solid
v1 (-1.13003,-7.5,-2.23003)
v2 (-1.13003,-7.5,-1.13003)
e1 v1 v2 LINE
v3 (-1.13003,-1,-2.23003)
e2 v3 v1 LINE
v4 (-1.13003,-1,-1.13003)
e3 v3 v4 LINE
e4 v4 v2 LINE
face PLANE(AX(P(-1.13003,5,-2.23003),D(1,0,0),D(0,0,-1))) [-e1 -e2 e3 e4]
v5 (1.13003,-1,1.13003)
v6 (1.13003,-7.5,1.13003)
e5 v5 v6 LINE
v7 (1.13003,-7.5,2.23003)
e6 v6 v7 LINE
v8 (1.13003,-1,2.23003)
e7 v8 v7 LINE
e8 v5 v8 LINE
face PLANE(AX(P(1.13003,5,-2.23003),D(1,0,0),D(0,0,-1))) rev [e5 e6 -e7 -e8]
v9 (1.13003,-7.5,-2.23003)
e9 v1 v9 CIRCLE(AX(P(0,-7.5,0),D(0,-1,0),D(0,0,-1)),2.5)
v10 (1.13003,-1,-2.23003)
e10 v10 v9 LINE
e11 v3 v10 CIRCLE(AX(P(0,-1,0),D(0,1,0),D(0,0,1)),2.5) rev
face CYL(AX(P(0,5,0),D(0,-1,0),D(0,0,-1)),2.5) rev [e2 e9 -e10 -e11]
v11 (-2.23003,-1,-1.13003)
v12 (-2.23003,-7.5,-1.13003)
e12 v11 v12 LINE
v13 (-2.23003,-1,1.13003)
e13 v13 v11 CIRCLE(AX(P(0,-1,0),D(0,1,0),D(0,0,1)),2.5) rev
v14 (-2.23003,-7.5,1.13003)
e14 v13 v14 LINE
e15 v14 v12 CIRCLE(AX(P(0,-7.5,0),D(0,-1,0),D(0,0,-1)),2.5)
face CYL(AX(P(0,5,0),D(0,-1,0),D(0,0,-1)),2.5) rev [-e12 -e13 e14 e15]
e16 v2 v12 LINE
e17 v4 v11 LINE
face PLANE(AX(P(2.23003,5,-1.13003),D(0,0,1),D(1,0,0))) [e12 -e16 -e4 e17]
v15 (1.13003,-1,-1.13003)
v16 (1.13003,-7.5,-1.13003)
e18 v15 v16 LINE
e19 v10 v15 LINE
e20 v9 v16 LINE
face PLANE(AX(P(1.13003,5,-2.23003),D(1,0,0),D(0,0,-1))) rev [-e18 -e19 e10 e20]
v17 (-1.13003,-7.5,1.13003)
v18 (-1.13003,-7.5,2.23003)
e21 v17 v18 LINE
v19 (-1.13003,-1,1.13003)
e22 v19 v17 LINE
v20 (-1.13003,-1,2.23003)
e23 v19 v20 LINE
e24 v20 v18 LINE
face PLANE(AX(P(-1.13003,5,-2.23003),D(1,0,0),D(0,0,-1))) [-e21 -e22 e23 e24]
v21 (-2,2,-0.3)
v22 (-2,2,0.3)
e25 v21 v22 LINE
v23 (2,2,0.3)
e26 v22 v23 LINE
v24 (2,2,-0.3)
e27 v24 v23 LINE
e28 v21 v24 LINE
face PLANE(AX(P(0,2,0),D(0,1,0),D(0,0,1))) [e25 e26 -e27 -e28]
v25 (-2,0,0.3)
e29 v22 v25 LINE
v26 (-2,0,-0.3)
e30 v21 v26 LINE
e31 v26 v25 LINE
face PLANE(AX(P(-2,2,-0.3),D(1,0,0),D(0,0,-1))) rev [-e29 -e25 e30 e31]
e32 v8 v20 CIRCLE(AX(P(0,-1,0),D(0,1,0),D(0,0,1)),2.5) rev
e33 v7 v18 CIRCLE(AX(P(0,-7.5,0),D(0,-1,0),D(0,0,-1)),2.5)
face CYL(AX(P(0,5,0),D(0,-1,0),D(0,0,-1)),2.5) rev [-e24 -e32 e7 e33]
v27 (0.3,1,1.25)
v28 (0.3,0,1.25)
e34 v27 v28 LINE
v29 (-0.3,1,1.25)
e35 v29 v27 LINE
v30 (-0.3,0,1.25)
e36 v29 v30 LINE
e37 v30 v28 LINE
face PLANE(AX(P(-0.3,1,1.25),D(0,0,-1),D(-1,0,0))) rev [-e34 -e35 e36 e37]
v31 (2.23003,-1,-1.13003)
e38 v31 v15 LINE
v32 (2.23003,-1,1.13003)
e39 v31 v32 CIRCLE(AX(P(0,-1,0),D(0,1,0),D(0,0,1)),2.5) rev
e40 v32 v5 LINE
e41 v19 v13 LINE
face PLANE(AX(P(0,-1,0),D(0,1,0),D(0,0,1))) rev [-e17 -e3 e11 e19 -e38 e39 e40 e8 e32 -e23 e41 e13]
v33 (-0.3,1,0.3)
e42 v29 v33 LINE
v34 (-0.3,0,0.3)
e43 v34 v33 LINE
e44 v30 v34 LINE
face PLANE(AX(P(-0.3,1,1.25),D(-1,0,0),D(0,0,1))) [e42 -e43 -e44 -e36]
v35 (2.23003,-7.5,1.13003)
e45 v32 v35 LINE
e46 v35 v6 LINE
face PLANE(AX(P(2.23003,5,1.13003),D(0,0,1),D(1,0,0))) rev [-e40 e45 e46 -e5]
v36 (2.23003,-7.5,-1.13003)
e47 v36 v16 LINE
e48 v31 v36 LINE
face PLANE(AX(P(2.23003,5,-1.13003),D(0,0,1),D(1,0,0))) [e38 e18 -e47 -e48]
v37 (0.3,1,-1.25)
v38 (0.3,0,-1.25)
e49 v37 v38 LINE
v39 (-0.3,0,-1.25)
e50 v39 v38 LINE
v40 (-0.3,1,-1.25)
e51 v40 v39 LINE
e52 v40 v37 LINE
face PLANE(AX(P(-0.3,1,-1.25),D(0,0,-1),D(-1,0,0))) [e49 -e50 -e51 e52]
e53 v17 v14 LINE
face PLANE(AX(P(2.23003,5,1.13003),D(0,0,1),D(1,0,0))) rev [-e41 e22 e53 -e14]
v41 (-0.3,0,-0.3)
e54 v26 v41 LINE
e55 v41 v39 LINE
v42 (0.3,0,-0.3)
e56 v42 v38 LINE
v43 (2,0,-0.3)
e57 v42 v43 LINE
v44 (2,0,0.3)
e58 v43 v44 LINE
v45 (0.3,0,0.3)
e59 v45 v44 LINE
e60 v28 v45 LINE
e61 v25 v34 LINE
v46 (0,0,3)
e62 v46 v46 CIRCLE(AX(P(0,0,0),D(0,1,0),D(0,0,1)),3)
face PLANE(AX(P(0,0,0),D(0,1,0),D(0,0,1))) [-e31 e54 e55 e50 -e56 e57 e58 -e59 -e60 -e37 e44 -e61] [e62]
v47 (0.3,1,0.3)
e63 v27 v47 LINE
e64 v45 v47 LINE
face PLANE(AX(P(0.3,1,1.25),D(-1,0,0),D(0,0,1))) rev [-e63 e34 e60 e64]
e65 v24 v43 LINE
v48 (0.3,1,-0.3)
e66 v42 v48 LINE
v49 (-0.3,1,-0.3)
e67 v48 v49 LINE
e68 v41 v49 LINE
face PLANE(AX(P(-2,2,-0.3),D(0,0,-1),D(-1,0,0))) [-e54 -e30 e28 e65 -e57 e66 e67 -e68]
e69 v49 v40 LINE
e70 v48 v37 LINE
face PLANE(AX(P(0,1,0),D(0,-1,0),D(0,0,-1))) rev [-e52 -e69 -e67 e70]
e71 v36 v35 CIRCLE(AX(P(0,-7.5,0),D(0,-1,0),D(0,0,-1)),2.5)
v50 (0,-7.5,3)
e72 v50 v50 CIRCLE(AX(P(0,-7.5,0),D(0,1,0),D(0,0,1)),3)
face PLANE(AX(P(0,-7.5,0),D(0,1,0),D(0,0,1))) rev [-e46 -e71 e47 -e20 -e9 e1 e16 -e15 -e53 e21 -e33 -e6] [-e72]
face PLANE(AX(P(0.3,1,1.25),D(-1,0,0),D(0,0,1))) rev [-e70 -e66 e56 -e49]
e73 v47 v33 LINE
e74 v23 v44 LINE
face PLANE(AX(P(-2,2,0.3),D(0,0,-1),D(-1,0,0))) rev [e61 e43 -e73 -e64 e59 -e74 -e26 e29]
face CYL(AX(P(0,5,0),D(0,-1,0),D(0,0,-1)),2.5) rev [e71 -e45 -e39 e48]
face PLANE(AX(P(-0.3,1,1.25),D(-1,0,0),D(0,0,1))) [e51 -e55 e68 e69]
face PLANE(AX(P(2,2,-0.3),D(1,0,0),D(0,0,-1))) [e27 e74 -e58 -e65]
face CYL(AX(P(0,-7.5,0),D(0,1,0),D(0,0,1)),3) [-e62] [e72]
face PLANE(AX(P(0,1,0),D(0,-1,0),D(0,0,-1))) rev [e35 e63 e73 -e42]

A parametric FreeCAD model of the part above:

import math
import FreeCAD as App
import Part
import Sketcher

V = App.Vector


def add_polygon(sketch, points):
    """Adds a closed chain of lines whose ends are joined by coincident constraints."""
    first, n = sketch.GeometryCount, len(points)
    for a, b in zip(points, points[1:] + points[:1]):
        sketch.addGeometry(Part.LineSegment(App.Vector(*a, 0), App.Vector(*b, 0)), False)
    for i in range(n):
        sketch.addConstraint(Sketcher.Constraint("Coincident", first + i, 2, first + (i + 1) % n, 1))

doc = App.newDocument("Part")
params = doc.addObject("Spreadsheet::Sheet", "Params")
for row, (alias, value) in enumerate([
    ("sketch1_width", "4 mm"),
    ("sketch1_height", "0.6 mm"),
    ("pad1_length", "2 mm"),
    ("sketch2_width", "0.6 mm"),
    ("sketch2_height", "2.5 mm"),
    ("pad2_length", "1 mm"),
    ("sketch3_diameter", "6 mm"),
    ("pad3_length", "7.5 mm"),
    ("sketch4_radius", "2.5 mm"),
    ("sketch4_width", "1.1 mm"),
    ("pocket1_length", "6.5 mm"),
], start=1):
    params.set(f"A{row}", alias)
    params.set(f"B{row}", "=" + value)
    params.setAlias(f"B{row}", alias)

body = doc.addObject("PartDesign::Body", "Body")

# Sketch on XZ plane
sketch1 = doc.addObject("Sketcher::SketchObject", "Sketch")
body.addObject(sketch1)
sketch1.AttachmentSupport = (doc.XZ_Plane, [""])
sketch1.MapMode = "FlatFace"
add_polygon(sketch1, [(-2, -0.3), (-2, 0.3), (2, 0.3), (2, -0.3)])  # lines 0-3
sketch1.addConstraint([
    Sketcher.Constraint("Vertical", 0),
    Sketcher.Constraint("Horizontal", 1),
    Sketcher.Constraint("Vertical", 2),
    Sketcher.Constraint("Horizontal", 3),
    Sketcher.Constraint("Symmetric", 0, 2, 2, 2, -1, 1),
    Sketcher.Constraint("DistanceX", 1, 1, 1, 2, 4.0),
    Sketcher.Constraint("DistanceY", 0, 1, 0, 2, 0.6),
])
sketch1.setExpression("Constraints[9]", "Params.sketch1_width")
sketch1.setExpression("Constraints[10]", "Params.sketch1_height")
pad1 = doc.addObject("PartDesign::Pad", "Pad")
body.addObject(pad1)
pad1.Profile = sketch1
pad1.setExpression("Length", "Params.pad1_length")
pad1.Reversed = True

# Sketch on XZ plane
sketch2 = doc.addObject("Sketcher::SketchObject", "Sketch001")
body.addObject(sketch2)
sketch2.AttachmentSupport = (doc.XZ_Plane, [""])
sketch2.MapMode = "FlatFace"
add_polygon(sketch2, [(-0.3, -1.2), (-0.3, 1.2), (0.3, 1.2), (0.3, -1.2)])  # lines 0-3
sketch2.addConstraint([
    Sketcher.Constraint("Vertical", 0),
    Sketcher.Constraint("Horizontal", 1),
    Sketcher.Constraint("Vertical", 2),
    Sketcher.Constraint("Horizontal", 3),
    Sketcher.Constraint("Symmetric", 0, 2, 2, 2, -1, 1),
    Sketcher.Constraint("DistanceX", 1, 1, 1, 2, 0.6),
    Sketcher.Constraint("DistanceY", 0, 1, 0, 2, 2.5),
])
sketch2.setExpression("Constraints[9]", "Params.sketch2_width")
sketch2.setExpression("Constraints[10]", "Params.sketch2_height")
pad2 = doc.addObject("PartDesign::Pad", "Pad001")
body.addObject(pad2)
pad2.Profile = sketch2
pad2.setExpression("Length", "Params.pad2_length")
pad2.Reversed = True

# Sketch on XZ plane
sketch3 = doc.addObject("Sketcher::SketchObject", "Sketch002")
body.addObject(sketch3)
sketch3.AttachmentSupport = (doc.XZ_Plane, [""])
sketch3.MapMode = "FlatFace"
sketch3.addGeometry(Part.Circle(V(0, 0, 0), V(0, 0, 1), 3), False)
sketch3.addConstraint([
    Sketcher.Constraint("Coincident", 0, 3, -1, 1),
    Sketcher.Constraint("Diameter", 0, 6.0),
])
sketch3.setExpression("Constraints[1]", "Params.sketch3_diameter")
pad3 = doc.addObject("PartDesign::Pad", "Pad002")
body.addObject(pad3)
pad3.Profile = sketch3
pad3.setExpression("Length", "Params.pad3_length")

# Sketch on XZ plane
sketch4 = doc.addObject("Sketcher::SketchObject", "Sketch003")
body.addObject(sketch4)
sketch4.AttachmentSupport = (doc.XZ_Plane, [""])
sketch4.MapMode = "FlatFace"
sketch4.AttachmentOffset = App.Placement(V(0, 0, 7.5), App.Rotation())
sketch4.addGeometry([
    Part.ArcOfCircle(Part.Circle(V(0, 0, 0), V(0, 0, 1), 2.5), math.radians(-117), math.radians(-63)),  # 0
    Part.LineSegment(V(1.1, -2.2, 0), V(1.1, -1.1, 0)),  # 1
    Part.LineSegment(V(1.1, -1.1, 0), V(2.2, -1.1, 0)),  # 2
    Part.ArcOfCircle(Part.Circle(V(0, 0, 0), V(0, 0, 1), 2.5), math.radians(-27), math.radians(27)),  # 3
    Part.LineSegment(V(2.2, 1.1, 0), V(1.1, 1.1, 0)),  # 4
    Part.LineSegment(V(1.1, 1.1, 0), V(1.1, 2.2, 0)),  # 5
    Part.ArcOfCircle(Part.Circle(V(0, 0, 0), V(0, 0, 1), 2.5), math.radians(63), math.radians(117)),  # 6
    Part.LineSegment(V(-1.1, 2.2, 0), V(-1.1, 1.1, 0)),  # 7
    Part.LineSegment(V(-1.1, 1.1, 0), V(-2.2, 1.1, 0)),  # 8
    Part.ArcOfCircle(Part.Circle(V(0, 0, 0), V(0, 0, 1), 2.5), math.radians(153), math.radians(207)),  # 9
    Part.LineSegment(V(-2.2, -1.1, 0), V(-1.1, -1.1, 0)),  # 10
    Part.LineSegment(V(-1.1, -1.1, 0), V(-1.1, -2.2, 0)),  # 11
], False)
sketch4.addConstraint([
    Sketcher.Constraint("Coincident", 0, 2, 1, 1),
    Sketcher.Constraint("Coincident", 1, 2, 2, 1),
    Sketcher.Constraint("Coincident", 2, 2, 3, 1),
    Sketcher.Constraint("Coincident", 3, 2, 4, 1),
    Sketcher.Constraint("Coincident", 4, 2, 5, 1),
    Sketcher.Constraint("Coincident", 5, 2, 6, 1),
    Sketcher.Constraint("Coincident", 6, 2, 7, 1),
    Sketcher.Constraint("Coincident", 7, 2, 8, 1),
    Sketcher.Constraint("Coincident", 8, 2, 9, 1),
    Sketcher.Constraint("Coincident", 9, 2, 10, 1),
    Sketcher.Constraint("Coincident", 10, 2, 11, 1),
    Sketcher.Constraint("Coincident", 11, 2, 0, 1),
    Sketcher.Constraint("Vertical", 1),
    Sketcher.Constraint("Horizontal", 2),
    Sketcher.Constraint("Horizontal", 4),
    Sketcher.Constraint("Vertical", 5),
    Sketcher.Constraint("Vertical", 7),
    Sketcher.Constraint("Horizontal", 8),
    Sketcher.Constraint("Horizontal", 10),
    Sketcher.Constraint("Vertical", 11),
    Sketcher.Constraint("Coincident", 0, 3, -1, 1),
    Sketcher.Constraint("Coincident", 3, 3, -1, 1),
    Sketcher.Constraint("Coincident", 6, 3, -1, 1),
    Sketcher.Constraint("Coincident", 9, 3, -1, 1),
    Sketcher.Constraint("Equal", 0, 3),
    Sketcher.Constraint("Equal", 3, 6),
    Sketcher.Constraint("Equal", 6, 9),
    Sketcher.Constraint("Symmetric", 1, 2, 7, 2, -1, 1),
    Sketcher.Constraint("Symmetric", 4, 2, 10, 2, -1, 1),
    Sketcher.Constraint("Symmetric", 4, 2, 7, 2, -2),
    Sketcher.Constraint("Equal", 10, 1),
    Sketcher.Constraint("Radius", 0, 2.5),
    Sketcher.Constraint("DistanceX", 2, 1, 2, 2, 1.1),
])
sketch4.setExpression("Constraints[31]", "Params.sketch4_radius")
sketch4.setExpression("Constraints[32]", "Params.sketch4_width")
pocket1 = doc.addObject("PartDesign::Pocket", "Pocket")
body.addObject(pocket1)
pocket1.Profile = sketch4
pocket1.setExpression("Length", "Params.pocket1_length")

doc.recompute()
